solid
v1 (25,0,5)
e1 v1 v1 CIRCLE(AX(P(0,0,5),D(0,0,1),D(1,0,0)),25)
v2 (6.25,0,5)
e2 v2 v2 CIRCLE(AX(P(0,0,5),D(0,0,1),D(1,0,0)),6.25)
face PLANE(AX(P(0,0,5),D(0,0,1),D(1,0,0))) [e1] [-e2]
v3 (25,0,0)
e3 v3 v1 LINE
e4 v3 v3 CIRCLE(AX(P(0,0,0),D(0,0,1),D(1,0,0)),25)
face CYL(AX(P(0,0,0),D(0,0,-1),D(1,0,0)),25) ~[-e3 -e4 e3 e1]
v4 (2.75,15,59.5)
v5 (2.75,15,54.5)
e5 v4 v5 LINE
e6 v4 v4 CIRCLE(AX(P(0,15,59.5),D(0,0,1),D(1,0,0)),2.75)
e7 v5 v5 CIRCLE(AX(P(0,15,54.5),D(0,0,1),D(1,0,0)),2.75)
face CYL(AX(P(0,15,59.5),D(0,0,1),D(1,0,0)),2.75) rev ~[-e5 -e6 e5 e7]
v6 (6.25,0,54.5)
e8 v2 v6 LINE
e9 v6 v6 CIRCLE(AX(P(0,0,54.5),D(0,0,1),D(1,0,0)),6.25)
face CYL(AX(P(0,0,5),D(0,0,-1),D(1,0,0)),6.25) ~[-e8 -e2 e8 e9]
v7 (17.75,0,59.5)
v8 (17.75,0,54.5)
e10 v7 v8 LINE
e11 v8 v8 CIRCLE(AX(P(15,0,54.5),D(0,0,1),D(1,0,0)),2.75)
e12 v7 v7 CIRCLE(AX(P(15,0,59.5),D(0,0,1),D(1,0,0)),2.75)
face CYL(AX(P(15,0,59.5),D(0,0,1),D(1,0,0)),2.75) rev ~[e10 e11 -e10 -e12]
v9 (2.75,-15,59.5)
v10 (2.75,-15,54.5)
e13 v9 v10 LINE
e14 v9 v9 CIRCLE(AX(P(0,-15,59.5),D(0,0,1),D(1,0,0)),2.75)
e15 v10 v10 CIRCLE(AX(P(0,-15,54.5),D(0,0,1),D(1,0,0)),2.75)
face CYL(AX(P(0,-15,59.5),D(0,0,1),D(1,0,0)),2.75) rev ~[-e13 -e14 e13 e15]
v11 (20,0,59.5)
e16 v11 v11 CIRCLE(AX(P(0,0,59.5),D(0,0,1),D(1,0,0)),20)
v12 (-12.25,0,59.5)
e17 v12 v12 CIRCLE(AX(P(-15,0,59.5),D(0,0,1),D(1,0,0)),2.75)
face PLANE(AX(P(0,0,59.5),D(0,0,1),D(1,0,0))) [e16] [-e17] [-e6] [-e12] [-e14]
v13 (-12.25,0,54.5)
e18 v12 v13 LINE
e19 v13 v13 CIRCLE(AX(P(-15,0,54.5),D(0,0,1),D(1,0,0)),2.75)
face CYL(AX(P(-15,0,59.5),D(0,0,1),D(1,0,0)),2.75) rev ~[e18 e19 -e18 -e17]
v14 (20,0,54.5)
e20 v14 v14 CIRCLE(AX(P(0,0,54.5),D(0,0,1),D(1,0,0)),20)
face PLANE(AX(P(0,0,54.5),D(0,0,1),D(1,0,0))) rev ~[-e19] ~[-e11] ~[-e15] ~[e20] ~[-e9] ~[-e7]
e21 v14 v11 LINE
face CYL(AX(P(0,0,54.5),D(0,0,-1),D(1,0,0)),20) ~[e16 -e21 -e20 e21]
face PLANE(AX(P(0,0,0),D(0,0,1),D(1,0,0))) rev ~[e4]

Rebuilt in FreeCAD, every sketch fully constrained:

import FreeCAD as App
import Part
import Sketcher
Q = App.Units.Quantity

doc = App.newDocument("Part")
body = doc.addObject("PartDesign::Body", "Body")

# Sketch on XY plane
sketch1 = doc.addObject("Sketcher::SketchObject", "Sketch")
body.addObject(sketch1)
sketch1.AttachmentSupport = (doc.XY_Plane, [""])
sketch1.MapMode = "FlatFace"
sketch1.addGeometry(Part.Circle(App.Vector(0, 0, 0), App.Vector(0, 0, 1), 25), False)
sketch1.addConstraint(Sketcher.Constraint("Coincident", 0, 3, -1, 1))
sketch1.addConstraint(Sketcher.Constraint("Diameter", 0, Q("50 mm")))
pad1 = doc.addObject("PartDesign::Pad", "Pad")
body.addObject(pad1)
pad1.Profile = sketch1
pad1.Length = 5

# Sketch on XY plane
sketch2 = doc.addObject("Sketcher::SketchObject", "Sketch001")
body.addObject(sketch2)
sketch2.AttachmentSupport = (doc.XY_Plane, [""])
sketch2.MapMode = "FlatFace"
sketch2.AttachmentOffset = App.Placement(App.Vector(0, 0, 5), App.Rotation())
sketch2.addGeometry(Part.Circle(App.Vector(0, 0, 0), App.Vector(0, 0, 1), 6.25), False)
sketch2.addConstraint(Sketcher.Constraint("Coincident", 0, 3, -1, 1))
sketch2.addConstraint(Sketcher.Constraint("Diameter", 0, Q("12.5 mm")))
pad2 = doc.addObject("PartDesign::Pad", "Pad001")
body.addObject(pad2)
pad2.Profile = sketch2
pad2.Length = 49.5

# Sketch on XY plane
sketch3 = doc.addObject("Sketcher::SketchObject", "Sketch002")
body.addObject(sketch3)
sketch3.AttachmentSupport = (doc.XY_Plane, [""])
sketch3.MapMode = "FlatFace"
sketch3.AttachmentOffset = App.Placement(App.Vector(0, 0, 54.5), App.Rotation())
sketch3.addGeometry(Part.Circle(App.Vector(0, 0, 0), App.Vector(0, 0, 1), 20), False)
sketch3.addConstraint(Sketcher.Constraint("Coincident", 0, 3, -1, 1))
sketch3.addConstraint(Sketcher.Constraint("Diameter", 0, Q("40 mm")))
pad3 = doc.addObject("PartDesign::Pad", "Pad002")
body.addObject(pad3)
pad3.Profile = sketch3
pad3.Length = 5

# Sketch on XY plane
sketch4 = doc.addObject("Sketcher::SketchObject", "Sketch003")
body.addObject(sketch4)
sketch4.AttachmentSupport = (doc.XY_Plane, [""])
sketch4.MapMode = "FlatFace"
sketch4.AttachmentOffset = App.Placement(App.Vector(0, 0, 59.5), App.Rotation())
sketch4.addGeometry(Part.Circle(App.Vector(0, 15, 0), App.Vector(0, 0, 1), 2.75), False)
sketch4.addGeometry(Part.Circle(App.Vector(15, 0, 0), App.Vector(0, 0, 1), 2.75), False)
sketch4.addGeometry(Part.Circle(App.Vector(0, -15, 0), App.Vector(0, 0, 1), 2.75), False)
sketch4.addGeometry(Part.Circle(App.Vector(-15, 0, 0), App.Vector(0, 0, 1), 2.75), False)
sketch4.addConstraint(Sketcher.Constraint("Equal", 0, 1))
sketch4.addConstraint(Sketcher.Constraint("Equal", 1, 2))
sketch4.addConstraint(Sketcher.Constraint("Equal", 2, 3))
sketch4.addConstraint(Sketcher.Constraint("Symmetric", 0, 3, 2, 3, -1, 1))
sketch4.addConstraint(Sketcher.Constraint("Symmetric", 1, 3, 3, 3, -1, 1))
sketch4.addConstraint(Sketcher.Constraint("PointOnObject", 0, 3, -2))
sketch4.addConstraint(Sketcher.Constraint("PointOnObject", 1, 3, -1))
sketch4.addConstraint(Sketcher.Constraint("Diameter", 0, Q("5.5 mm")))
sketch4.addConstraint(Sketcher.Constraint("DistanceY", -1, 1, 0, 3, Q("15 mm")))
sketch4.addConstraint(Sketcher.Constraint("DistanceX", -1, 1, 1, 3, Q("15 mm")))
pocket1 = doc.addObject("PartDesign::Pocket", "Pocket")
body.addObject(pocket1)
pocket1.Profile = sketch4
pocket1.Length = 5

doc.recompute()
